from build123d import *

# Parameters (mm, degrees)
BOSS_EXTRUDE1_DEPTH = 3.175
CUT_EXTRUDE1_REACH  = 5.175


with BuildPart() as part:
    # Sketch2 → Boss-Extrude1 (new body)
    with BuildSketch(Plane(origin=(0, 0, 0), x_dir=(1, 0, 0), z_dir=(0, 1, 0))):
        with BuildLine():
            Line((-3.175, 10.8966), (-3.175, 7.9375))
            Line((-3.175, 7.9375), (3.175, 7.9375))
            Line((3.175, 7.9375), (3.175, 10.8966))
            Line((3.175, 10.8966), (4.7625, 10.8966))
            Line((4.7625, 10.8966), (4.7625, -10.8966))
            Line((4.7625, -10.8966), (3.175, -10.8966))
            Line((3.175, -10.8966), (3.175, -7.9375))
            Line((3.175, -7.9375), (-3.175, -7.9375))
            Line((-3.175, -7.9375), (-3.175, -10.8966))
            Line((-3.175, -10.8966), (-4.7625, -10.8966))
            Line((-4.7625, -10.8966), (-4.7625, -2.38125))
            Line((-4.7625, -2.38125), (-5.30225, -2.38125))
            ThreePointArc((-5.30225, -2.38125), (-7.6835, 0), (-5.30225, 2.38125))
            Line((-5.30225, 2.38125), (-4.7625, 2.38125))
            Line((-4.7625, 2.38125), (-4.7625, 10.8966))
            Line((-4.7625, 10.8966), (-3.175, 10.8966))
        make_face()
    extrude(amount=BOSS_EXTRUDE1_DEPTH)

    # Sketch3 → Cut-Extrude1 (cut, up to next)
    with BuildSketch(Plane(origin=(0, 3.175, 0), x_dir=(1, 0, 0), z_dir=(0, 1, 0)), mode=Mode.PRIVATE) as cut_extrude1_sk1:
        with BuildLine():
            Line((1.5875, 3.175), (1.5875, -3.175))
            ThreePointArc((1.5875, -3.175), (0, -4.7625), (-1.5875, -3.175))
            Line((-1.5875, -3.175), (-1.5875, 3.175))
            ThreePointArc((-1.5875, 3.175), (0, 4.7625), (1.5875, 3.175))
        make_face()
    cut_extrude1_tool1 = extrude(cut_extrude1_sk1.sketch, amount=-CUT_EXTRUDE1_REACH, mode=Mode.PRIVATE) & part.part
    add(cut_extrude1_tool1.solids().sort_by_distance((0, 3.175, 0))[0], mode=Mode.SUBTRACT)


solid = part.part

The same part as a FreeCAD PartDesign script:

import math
import FreeCAD as App
import Part
import Sketcher
Q = App.Units.Quantity

doc = App.newDocument("Part")
body = doc.addObject("PartDesign::Body", "Body")

sketch1 = doc.addObject("Sketcher::SketchObject", "Sketch")
body.addObject(sketch1)
sketch1.AttachmentSupport = (doc.XZ_Plane, [""])
sketch1.MapMode = "FlatFace"
sketch1.addGeometry([
    Part.LineSegment(App.Vector(-3.2, -7.9, 0), App.Vector(-3.2, -10.9, 0)),
    Part.LineSegment(App.Vector(-3.2, -10.9, 0), App.Vector(-4.8, -10.9, 0)),
    Part.LineSegment(App.Vector(-4.8, -10.9, 0), App.Vector(-4.8, -2.4, 0)),
    Part.LineSegment(App.Vector(-4.8, -2.4, 0), App.Vector(-5.3, -2.4, 0)),
    Part.ArcOfCircle(Part.Circle(App.Vector(-5.3, 0, 0), App.Vector(0, 0, 1), 2.4), math.radians(90), math.radians(270)),
    Part.LineSegment(App.Vector(-5.3, 2.4, 0), App.Vector(-4.8, 2.4, 0)),
    Part.LineSegment(App.Vector(-4.8, 2.4, 0), App.Vector(-4.8, 10.9, 0)),
    Part.LineSegment(App.Vector(-4.8, 10.9, 0), App.Vector(-3.2, 10.9, 0)),
    Part.LineSegment(App.Vector(-3.2, 10.9, 0), App.Vector(-3.2, 7.9, 0)),
    Part.LineSegment(App.Vector(-3.2, 7.9, 0), App.Vector(3.2, 7.9, 0)),
    Part.LineSegment(App.Vector(3.2, 7.9, 0), App.Vector(3.2, 10.9, 0)),
    Part.LineSegment(App.Vector(3.2, 10.9, 0), App.Vector(4.8, 10.9, 0)),
    Part.LineSegment(App.Vector(4.8, 10.9, 0), App.Vector(4.8, -10.9, 0)),
    Part.LineSegment(App.Vector(4.8, -10.9, 0), App.Vector(3.2, -10.9, 0)),
    Part.LineSegment(App.Vector(3.2, -10.9, 0), App.Vector(3.2, -7.9, 0)),
    Part.LineSegment(App.Vector(3.2, -7.9, 0), App.Vector(-3.2, -7.9, 0)),
], False)
sketch1.addConstraint([
    Sketcher.Constraint("Coincident", 0, 2, 1, 1),
    Sketcher.Constraint("Coincident", 1, 2, 2, 1),
    Sketcher.Constraint("Coincident", 2, 2, 3, 1),
    Sketcher.Constraint("Tangent", 3, 2, 4, 2),
    Sketcher.Constraint("Tangent", 4, 1, 5, 1),
    Sketcher.Constraint("Coincident", 5, 2, 6, 1),
    Sketcher.Constraint("Coincident", 6, 2, 7, 1),
    Sketcher.Constraint("Coincident", 7, 2, 8, 1),
    Sketcher.Constraint("Coincident", 8, 2, 9, 1),
    Sketcher.Constraint("Coincident", 9, 2, 10, 1),
    Sketcher.Constraint("Coincident", 10, 2, 11, 1),
    Sketcher.Constraint("Coincident", 11, 2, 12, 1),
    Sketcher.Constraint("Coincident", 12, 2, 13, 1),
    Sketcher.Constraint("Coincident", 13, 2, 14, 1),
    Sketcher.Constraint("Coincident", 14, 2, 15, 1),
    Sketcher.Constraint("Coincident", 15, 2, 0, 1),
    Sketcher.Constraint("Vertical", 0),
    Sketcher.Constraint("Horizontal", 1),
    Sketcher.Constraint("Vertical", 2),
    Sketcher.Constraint("Horizontal", 3),
    Sketcher.Constraint("Horizontal", 5),
    Sketcher.Constraint("Vertical", 6),
    Sketcher.Constraint("Horizontal", 7),
    Sketcher.Constraint("Vertical", 8),
    Sketcher.Constraint("Horizontal", 9),
    Sketcher.Constraint("Vertical", 10),
    Sketcher.Constraint("Horizontal", 11),
    Sketcher.Constraint("Vertical", 12),
    Sketcher.Constraint("Horizontal", 13),
    Sketcher.Constraint("Vertical", 14),
    Sketcher.Constraint("Horizontal", 15),
    Sketcher.Constraint("Symmetric", 0, 2, 10, 2, -1, 1),
    Sketcher.Constraint("Symmetric", 6, 2, 12, 2, -1, 1),
    Sketcher.Constraint("Symmetric", 8, 2, 14, 2, -1, 1),
    Sketcher.Constraint("Symmetric", 7, 2, 10, 2, -2),
    Sketcher.Constraint("Symmetric", 2, 2, 5, 2, -1),
    Sketcher.Constraint("Radius", 4, Q("0.09375 in")),
    Sketcher.Constraint("DistanceX", 9, 1, 9, 2, Q("0.25 in")),
    Sketcher.Constraint("DistanceX", 1, 2, 1, 1, Q("0.0625 in")),
    Sketcher.Constraint("DistanceY", 12, 2, 12, 1, Q("0.858 in")),
    Sketcher.Constraint("DistanceY", 0, 2, 0, 1, Q("0.1165 in")),
    Sketcher.Constraint("DistanceX", 3, 2, 3, 1, 0.53975),
])
pad1 = doc.addObject("PartDesign::Pad", "Pad")
body.addObject(pad1)
pad1.Profile = sketch1
pad1.Length = Q("0.125 in")
pad1.Reversed = True

sketch2 = doc.addObject("Sketcher::SketchObject", "Sketch001")
body.addObject(sketch2)
sketch2.AttachmentSupport = (doc.XZ_Plane, [""])
sketch2.MapMode = "FlatFace"
sketch2.AttachmentOffset = App.Placement(App.Vector(0, 0, -0.125 * 25.4), App.Rotation())
sketch2.addGeometry([
    Part.LineSegment(App.Vector(1.6, 3.2, 0), App.Vector(1.6, -3.2, 0)),
    Part.ArcOfCircle(Part.Circle(App.Vector(0, -3.2, 0), App.Vector(0, 0, 1), 1.6), math.radians(180), math.radians(360)),
    Part.LineSegment(App.Vector(-1.6, -3.2, 0), App.Vector(-1.6, 3.2, 0)),
    Part.ArcOfCircle(Part.Circle(App.Vector(0, 3.2, 0), App.Vector(0, 0, 1), 1.6), math.radians(0), math.radians(180)),
], False)
sketch2.addConstraint([
    Sketcher.Constraint("Tangent", 0, 2, 1, 2),
    Sketcher.Constraint("Tangent", 1, 1, 2, 1),
    Sketcher.Constraint("Tangent", 2, 2, 3, 2),
    Sketcher.Constraint("Tangent", 3, 1, 0, 1),
    Sketcher.Constraint("Vertical", 0),
    Sketcher.Constraint("Vertical", 2),
    Sketcher.Constraint("Symmetric", 1, 3, 3, 3, -1, 1),
    Sketcher.Constraint("Radius", 1, Q("0.0625 in")),
    Sketcher.Constraint("DistanceY", 0, 2, 0, 1, Q("0.25 in")),
])
pocket1 = doc.addObject("PartDesign::Pocket", "Pocket")
body.addObject(pocket1)
pocket1.Profile = sketch2
pocket1.Type = "UpToFirst"
pocket1.Reversed = True

doc.recompute()
